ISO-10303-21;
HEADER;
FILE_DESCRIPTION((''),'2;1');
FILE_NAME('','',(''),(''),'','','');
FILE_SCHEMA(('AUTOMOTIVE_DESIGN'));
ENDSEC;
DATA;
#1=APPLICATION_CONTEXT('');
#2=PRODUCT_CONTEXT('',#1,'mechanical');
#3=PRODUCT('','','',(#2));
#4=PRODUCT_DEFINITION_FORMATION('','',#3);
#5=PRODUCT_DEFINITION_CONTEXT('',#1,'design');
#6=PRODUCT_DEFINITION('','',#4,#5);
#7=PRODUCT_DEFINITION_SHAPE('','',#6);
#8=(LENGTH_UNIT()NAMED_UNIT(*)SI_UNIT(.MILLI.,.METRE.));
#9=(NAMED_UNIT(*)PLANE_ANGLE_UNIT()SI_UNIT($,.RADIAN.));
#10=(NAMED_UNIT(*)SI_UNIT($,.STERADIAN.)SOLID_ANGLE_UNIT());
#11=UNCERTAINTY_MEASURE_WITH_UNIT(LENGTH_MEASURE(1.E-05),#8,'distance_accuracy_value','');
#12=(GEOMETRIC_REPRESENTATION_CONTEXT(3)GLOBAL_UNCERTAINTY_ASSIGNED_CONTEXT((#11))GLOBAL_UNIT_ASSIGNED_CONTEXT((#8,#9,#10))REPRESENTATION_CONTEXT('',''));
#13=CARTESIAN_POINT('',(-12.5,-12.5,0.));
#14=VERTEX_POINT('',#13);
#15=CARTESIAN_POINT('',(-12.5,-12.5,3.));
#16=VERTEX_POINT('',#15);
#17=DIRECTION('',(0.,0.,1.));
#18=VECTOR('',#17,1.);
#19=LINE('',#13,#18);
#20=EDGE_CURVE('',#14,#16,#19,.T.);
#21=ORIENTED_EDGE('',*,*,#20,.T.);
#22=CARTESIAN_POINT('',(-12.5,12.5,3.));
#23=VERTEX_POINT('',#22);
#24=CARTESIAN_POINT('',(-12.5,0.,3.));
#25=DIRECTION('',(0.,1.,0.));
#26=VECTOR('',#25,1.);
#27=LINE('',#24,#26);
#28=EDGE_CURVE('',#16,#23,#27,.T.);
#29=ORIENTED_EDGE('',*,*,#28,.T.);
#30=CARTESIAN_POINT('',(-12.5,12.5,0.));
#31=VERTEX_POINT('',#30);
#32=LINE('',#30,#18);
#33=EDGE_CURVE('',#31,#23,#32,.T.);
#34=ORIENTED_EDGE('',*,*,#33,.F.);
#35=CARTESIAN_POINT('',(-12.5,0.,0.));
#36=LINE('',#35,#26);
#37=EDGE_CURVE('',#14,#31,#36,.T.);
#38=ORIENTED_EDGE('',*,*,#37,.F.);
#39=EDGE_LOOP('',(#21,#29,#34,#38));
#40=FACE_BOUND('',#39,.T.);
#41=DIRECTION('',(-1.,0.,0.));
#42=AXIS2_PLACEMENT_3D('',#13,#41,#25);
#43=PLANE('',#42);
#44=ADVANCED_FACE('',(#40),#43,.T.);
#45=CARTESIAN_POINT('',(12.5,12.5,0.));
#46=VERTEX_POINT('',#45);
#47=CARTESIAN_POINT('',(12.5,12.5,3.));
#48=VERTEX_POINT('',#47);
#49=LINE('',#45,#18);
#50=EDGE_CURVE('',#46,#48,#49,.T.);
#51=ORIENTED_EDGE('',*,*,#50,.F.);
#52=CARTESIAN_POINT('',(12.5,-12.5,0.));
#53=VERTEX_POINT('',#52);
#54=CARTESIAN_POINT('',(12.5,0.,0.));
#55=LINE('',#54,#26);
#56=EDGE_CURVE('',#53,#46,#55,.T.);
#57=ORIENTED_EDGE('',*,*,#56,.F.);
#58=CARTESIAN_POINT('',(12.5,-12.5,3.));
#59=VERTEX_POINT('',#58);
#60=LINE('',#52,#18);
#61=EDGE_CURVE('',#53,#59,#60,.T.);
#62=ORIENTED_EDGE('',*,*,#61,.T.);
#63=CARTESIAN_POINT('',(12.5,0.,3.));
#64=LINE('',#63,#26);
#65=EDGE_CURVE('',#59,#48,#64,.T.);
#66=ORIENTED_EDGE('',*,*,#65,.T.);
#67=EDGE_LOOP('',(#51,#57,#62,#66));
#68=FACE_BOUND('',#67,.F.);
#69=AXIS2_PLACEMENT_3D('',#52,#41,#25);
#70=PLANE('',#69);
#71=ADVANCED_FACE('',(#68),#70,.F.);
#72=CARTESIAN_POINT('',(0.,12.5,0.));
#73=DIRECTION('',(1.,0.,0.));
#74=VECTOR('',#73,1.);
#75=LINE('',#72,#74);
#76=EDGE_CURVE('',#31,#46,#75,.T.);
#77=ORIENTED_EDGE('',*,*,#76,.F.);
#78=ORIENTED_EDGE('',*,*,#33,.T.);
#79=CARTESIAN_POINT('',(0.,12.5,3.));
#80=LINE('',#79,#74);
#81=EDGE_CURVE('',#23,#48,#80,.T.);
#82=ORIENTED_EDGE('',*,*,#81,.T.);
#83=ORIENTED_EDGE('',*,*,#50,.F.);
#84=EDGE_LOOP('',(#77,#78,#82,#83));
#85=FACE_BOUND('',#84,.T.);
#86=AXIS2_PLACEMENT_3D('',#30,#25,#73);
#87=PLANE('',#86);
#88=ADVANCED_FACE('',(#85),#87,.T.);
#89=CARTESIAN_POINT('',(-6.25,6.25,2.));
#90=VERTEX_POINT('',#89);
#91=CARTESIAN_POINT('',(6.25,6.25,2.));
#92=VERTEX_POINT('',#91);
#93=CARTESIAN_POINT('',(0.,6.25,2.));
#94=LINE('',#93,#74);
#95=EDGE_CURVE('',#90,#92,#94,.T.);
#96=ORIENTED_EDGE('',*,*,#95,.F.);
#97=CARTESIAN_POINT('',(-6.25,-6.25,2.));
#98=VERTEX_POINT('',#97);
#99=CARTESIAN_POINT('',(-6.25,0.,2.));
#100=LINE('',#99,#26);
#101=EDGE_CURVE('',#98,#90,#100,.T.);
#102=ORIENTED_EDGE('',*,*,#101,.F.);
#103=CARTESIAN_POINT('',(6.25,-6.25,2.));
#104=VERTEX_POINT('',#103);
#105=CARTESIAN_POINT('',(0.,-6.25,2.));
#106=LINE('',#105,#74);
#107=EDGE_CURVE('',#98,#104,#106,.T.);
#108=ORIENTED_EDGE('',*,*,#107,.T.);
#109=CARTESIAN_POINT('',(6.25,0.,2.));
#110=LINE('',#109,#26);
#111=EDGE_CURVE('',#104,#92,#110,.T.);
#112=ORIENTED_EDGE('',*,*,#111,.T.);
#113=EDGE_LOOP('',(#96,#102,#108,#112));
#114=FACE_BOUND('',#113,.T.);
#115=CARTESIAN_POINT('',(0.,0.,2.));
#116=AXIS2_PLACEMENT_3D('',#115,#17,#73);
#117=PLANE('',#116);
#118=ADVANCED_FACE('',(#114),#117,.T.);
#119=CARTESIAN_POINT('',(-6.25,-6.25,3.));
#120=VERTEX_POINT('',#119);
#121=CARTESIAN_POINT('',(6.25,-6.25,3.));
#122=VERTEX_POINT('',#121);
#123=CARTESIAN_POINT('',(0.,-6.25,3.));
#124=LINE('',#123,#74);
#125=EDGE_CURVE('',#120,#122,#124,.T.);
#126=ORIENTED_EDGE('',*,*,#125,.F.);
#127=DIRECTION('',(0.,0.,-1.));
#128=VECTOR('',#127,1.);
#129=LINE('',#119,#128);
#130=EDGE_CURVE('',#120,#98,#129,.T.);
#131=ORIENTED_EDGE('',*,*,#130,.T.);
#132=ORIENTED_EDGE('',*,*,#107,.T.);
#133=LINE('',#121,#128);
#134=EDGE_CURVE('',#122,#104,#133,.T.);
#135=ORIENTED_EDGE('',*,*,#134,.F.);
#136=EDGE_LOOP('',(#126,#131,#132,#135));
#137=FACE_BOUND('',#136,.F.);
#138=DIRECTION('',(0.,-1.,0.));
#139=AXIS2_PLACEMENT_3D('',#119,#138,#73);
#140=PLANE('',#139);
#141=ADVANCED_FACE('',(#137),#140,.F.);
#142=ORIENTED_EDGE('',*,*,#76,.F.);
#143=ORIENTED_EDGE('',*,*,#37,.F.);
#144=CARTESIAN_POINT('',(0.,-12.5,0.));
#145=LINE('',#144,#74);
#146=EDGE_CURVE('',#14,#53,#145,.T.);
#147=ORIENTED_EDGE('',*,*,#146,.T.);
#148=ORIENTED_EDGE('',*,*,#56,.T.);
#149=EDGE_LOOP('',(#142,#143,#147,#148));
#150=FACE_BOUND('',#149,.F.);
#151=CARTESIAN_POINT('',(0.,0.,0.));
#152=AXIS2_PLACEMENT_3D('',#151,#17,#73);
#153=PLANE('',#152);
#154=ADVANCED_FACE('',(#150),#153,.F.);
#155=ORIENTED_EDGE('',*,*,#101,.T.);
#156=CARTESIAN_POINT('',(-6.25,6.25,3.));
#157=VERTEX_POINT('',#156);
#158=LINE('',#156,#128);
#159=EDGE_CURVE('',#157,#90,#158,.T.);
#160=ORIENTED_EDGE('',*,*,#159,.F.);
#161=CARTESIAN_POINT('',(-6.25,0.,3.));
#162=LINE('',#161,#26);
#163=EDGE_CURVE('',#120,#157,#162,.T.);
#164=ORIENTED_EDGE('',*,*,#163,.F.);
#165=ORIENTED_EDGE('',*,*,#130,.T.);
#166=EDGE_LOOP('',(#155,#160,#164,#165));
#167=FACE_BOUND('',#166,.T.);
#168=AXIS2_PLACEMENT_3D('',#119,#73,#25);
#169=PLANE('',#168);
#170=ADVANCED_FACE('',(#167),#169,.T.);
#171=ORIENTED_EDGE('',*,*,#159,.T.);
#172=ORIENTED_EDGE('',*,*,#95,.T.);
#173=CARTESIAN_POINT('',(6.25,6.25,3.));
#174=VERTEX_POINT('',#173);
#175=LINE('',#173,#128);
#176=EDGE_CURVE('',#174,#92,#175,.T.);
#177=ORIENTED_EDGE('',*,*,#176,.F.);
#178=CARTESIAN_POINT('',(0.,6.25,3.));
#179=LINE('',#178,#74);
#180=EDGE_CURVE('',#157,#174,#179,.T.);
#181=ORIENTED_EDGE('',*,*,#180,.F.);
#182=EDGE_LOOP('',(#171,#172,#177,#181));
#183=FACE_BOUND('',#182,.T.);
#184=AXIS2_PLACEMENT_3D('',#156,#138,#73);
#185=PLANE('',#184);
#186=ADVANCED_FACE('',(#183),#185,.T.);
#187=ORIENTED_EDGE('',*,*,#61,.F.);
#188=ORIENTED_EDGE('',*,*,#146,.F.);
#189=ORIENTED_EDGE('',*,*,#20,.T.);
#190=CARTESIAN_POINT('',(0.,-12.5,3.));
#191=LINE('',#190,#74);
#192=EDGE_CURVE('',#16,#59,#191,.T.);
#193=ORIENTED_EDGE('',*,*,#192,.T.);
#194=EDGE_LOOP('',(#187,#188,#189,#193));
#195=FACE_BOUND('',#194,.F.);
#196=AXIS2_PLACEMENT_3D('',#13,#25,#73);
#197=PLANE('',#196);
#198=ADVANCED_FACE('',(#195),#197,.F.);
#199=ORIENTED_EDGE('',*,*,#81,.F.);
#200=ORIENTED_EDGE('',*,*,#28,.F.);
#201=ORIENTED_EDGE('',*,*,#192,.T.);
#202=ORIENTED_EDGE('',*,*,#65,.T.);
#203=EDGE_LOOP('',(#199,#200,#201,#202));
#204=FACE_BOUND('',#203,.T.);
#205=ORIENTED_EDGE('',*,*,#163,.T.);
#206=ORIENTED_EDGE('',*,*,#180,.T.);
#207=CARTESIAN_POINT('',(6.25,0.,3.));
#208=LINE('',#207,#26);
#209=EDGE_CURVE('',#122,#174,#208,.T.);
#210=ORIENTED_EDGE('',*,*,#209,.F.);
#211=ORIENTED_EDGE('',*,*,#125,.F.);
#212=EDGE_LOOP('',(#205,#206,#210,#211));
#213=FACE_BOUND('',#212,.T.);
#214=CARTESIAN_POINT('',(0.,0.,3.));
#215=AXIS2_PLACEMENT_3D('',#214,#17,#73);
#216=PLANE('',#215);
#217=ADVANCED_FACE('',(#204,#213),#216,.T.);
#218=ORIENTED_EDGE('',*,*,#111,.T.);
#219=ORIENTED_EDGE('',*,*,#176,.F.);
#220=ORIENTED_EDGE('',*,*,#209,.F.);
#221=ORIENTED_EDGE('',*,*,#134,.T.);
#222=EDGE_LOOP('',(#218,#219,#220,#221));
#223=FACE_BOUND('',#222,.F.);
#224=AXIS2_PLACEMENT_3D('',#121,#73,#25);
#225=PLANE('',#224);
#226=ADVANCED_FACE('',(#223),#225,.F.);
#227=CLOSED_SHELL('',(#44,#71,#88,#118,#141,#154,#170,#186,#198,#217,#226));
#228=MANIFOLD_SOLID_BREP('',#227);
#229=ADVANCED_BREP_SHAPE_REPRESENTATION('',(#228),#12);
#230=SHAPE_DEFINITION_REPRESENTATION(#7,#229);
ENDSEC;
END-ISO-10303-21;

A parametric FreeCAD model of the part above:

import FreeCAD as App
import Part
import Sketcher
Q = App.Units.Quantity

doc = App.newDocument("Part")
body = doc.addObject("PartDesign::Body", "Body")

# Sketch on XY plane
sketch1 = body.newObject("Sketcher::SketchObject", "Sketch")
sketch1.AttachmentSupport = (doc.getObject("XY_Plane"), [""])
sketch1.MapMode = "FlatFace"
sketch1.addGeometry(Part.LineSegment(App.Vector(-12, 12, 0), App.Vector(-12, -12, 0)), False)
sketch1.addGeometry(Part.LineSegment(App.Vector(-12, -12, 0), App.Vector(12, -12, 0)), False)
sketch1.addGeometry(Part.LineSegment(App.Vector(12, -12, 0), App.Vector(12, 12, 0)), False)
sketch1.addGeometry(Part.LineSegment(App.Vector(12, 12, 0), App.Vector(-12, 12, 0)), False)
sketch1.addConstraint(Sketcher.Constraint("Coincident", 0, 2, 1, 1))
sketch1.addConstraint(Sketcher.Constraint("Coincident", 1, 2, 2, 1))
sketch1.addConstraint(Sketcher.Constraint("Coincident", 2, 2, 3, 1))
sketch1.addConstraint(Sketcher.Constraint("Coincident", 3, 2, 0, 1))
sketch1.addConstraint(Sketcher.Constraint("Vertical", 0))
sketch1.addConstraint(Sketcher.Constraint("Horizontal", 1))
sketch1.addConstraint(Sketcher.Constraint("Vertical", 2))
sketch1.addConstraint(Sketcher.Constraint("Horizontal", 3))
sketch1.addConstraint(Sketcher.Constraint("Symmetric", 0, 2, 2, 2, -1, 1))
sketch1.addConstraint(Sketcher.Constraint("Equal", 3, 0))
sketch1.addConstraint(Sketcher.Constraint("DistanceX", 1, 1, 1, 2, Q("25 mm")))
pad1 = body.newObject("PartDesign::Pad", "Pad")
pad1.Profile = sketch1
pad1.Length = 3
body2 = doc.addObject("PartDesign::Body", "Body001")

# Sketch on XY plane
sketch2 = body2.newObject("Sketcher::SketchObject", "Sketch001")
sketch2.AttachmentSupport = (doc.getObject("XY_Plane001"), [""])
sketch2.MapMode = "FlatFace"
sketch2.AttachmentOffset = App.Placement(App.Vector(0, 0, 3), App.Rotation())
sketch2.addGeometry(Part.LineSegment(App.Vector(-6, 6, 0), App.Vector(-6, -6, 0)), False)
sketch2.addGeometry(Part.LineSegment(App.Vector(-6, -6, 0), App.Vector(6, -6, 0)), False)
sketch2.addGeometry(Part.LineSegment(App.Vector(6, -6, 0), App.Vector(6, 6, 0)), False)
sketch2.addGeometry(Part.LineSegment(App.Vector(6, 6, 0), App.Vector(-6, 6, 0)), False)
sketch2.addConstraint(Sketcher.Constraint("Coincident", 0, 2, 1, 1))
sketch2.addConstraint(Sketcher.Constraint("Coincident", 1, 2, 2, 1))
sketch2.addConstraint(Sketcher.Constraint("Coincident", 2, 2, 3, 1))
sketch2.addConstraint(Sketcher.Constraint("Coincident", 3, 2, 0, 1))
sketch2.addConstraint(Sketcher.Constraint("Vertical", 0))
sketch2.addConstraint(Sketcher.Constraint("Horizontal", 1))
sketch2.addConstraint(Sketcher.Constraint("Vertical", 2))
sketch2.addConstraint(Sketcher.Constraint("Horizontal", 3))
sketch2.addConstraint(Sketcher.Constraint("Symmetric", 0, 2, 2, 2, -1, 1))
sketch2.addConstraint(Sketcher.Constraint("Equal", 3, 0))
sketch2.addConstraint(Sketcher.Constraint("DistanceX", 1, 1, 1, 2, Q("12.5 mm")))
pad2 = body2.newObject("PartDesign::Pad", "Pad001")
pad2.Profile = sketch2
pad2.Length = 1
pad2.Reversed = True
doc.recompute()

boolean = body.newObject("PartDesign::Boolean", "Boolean")
boolean.Type = "Cut"
boolean.addObjects([body2])

doc.recompute()
